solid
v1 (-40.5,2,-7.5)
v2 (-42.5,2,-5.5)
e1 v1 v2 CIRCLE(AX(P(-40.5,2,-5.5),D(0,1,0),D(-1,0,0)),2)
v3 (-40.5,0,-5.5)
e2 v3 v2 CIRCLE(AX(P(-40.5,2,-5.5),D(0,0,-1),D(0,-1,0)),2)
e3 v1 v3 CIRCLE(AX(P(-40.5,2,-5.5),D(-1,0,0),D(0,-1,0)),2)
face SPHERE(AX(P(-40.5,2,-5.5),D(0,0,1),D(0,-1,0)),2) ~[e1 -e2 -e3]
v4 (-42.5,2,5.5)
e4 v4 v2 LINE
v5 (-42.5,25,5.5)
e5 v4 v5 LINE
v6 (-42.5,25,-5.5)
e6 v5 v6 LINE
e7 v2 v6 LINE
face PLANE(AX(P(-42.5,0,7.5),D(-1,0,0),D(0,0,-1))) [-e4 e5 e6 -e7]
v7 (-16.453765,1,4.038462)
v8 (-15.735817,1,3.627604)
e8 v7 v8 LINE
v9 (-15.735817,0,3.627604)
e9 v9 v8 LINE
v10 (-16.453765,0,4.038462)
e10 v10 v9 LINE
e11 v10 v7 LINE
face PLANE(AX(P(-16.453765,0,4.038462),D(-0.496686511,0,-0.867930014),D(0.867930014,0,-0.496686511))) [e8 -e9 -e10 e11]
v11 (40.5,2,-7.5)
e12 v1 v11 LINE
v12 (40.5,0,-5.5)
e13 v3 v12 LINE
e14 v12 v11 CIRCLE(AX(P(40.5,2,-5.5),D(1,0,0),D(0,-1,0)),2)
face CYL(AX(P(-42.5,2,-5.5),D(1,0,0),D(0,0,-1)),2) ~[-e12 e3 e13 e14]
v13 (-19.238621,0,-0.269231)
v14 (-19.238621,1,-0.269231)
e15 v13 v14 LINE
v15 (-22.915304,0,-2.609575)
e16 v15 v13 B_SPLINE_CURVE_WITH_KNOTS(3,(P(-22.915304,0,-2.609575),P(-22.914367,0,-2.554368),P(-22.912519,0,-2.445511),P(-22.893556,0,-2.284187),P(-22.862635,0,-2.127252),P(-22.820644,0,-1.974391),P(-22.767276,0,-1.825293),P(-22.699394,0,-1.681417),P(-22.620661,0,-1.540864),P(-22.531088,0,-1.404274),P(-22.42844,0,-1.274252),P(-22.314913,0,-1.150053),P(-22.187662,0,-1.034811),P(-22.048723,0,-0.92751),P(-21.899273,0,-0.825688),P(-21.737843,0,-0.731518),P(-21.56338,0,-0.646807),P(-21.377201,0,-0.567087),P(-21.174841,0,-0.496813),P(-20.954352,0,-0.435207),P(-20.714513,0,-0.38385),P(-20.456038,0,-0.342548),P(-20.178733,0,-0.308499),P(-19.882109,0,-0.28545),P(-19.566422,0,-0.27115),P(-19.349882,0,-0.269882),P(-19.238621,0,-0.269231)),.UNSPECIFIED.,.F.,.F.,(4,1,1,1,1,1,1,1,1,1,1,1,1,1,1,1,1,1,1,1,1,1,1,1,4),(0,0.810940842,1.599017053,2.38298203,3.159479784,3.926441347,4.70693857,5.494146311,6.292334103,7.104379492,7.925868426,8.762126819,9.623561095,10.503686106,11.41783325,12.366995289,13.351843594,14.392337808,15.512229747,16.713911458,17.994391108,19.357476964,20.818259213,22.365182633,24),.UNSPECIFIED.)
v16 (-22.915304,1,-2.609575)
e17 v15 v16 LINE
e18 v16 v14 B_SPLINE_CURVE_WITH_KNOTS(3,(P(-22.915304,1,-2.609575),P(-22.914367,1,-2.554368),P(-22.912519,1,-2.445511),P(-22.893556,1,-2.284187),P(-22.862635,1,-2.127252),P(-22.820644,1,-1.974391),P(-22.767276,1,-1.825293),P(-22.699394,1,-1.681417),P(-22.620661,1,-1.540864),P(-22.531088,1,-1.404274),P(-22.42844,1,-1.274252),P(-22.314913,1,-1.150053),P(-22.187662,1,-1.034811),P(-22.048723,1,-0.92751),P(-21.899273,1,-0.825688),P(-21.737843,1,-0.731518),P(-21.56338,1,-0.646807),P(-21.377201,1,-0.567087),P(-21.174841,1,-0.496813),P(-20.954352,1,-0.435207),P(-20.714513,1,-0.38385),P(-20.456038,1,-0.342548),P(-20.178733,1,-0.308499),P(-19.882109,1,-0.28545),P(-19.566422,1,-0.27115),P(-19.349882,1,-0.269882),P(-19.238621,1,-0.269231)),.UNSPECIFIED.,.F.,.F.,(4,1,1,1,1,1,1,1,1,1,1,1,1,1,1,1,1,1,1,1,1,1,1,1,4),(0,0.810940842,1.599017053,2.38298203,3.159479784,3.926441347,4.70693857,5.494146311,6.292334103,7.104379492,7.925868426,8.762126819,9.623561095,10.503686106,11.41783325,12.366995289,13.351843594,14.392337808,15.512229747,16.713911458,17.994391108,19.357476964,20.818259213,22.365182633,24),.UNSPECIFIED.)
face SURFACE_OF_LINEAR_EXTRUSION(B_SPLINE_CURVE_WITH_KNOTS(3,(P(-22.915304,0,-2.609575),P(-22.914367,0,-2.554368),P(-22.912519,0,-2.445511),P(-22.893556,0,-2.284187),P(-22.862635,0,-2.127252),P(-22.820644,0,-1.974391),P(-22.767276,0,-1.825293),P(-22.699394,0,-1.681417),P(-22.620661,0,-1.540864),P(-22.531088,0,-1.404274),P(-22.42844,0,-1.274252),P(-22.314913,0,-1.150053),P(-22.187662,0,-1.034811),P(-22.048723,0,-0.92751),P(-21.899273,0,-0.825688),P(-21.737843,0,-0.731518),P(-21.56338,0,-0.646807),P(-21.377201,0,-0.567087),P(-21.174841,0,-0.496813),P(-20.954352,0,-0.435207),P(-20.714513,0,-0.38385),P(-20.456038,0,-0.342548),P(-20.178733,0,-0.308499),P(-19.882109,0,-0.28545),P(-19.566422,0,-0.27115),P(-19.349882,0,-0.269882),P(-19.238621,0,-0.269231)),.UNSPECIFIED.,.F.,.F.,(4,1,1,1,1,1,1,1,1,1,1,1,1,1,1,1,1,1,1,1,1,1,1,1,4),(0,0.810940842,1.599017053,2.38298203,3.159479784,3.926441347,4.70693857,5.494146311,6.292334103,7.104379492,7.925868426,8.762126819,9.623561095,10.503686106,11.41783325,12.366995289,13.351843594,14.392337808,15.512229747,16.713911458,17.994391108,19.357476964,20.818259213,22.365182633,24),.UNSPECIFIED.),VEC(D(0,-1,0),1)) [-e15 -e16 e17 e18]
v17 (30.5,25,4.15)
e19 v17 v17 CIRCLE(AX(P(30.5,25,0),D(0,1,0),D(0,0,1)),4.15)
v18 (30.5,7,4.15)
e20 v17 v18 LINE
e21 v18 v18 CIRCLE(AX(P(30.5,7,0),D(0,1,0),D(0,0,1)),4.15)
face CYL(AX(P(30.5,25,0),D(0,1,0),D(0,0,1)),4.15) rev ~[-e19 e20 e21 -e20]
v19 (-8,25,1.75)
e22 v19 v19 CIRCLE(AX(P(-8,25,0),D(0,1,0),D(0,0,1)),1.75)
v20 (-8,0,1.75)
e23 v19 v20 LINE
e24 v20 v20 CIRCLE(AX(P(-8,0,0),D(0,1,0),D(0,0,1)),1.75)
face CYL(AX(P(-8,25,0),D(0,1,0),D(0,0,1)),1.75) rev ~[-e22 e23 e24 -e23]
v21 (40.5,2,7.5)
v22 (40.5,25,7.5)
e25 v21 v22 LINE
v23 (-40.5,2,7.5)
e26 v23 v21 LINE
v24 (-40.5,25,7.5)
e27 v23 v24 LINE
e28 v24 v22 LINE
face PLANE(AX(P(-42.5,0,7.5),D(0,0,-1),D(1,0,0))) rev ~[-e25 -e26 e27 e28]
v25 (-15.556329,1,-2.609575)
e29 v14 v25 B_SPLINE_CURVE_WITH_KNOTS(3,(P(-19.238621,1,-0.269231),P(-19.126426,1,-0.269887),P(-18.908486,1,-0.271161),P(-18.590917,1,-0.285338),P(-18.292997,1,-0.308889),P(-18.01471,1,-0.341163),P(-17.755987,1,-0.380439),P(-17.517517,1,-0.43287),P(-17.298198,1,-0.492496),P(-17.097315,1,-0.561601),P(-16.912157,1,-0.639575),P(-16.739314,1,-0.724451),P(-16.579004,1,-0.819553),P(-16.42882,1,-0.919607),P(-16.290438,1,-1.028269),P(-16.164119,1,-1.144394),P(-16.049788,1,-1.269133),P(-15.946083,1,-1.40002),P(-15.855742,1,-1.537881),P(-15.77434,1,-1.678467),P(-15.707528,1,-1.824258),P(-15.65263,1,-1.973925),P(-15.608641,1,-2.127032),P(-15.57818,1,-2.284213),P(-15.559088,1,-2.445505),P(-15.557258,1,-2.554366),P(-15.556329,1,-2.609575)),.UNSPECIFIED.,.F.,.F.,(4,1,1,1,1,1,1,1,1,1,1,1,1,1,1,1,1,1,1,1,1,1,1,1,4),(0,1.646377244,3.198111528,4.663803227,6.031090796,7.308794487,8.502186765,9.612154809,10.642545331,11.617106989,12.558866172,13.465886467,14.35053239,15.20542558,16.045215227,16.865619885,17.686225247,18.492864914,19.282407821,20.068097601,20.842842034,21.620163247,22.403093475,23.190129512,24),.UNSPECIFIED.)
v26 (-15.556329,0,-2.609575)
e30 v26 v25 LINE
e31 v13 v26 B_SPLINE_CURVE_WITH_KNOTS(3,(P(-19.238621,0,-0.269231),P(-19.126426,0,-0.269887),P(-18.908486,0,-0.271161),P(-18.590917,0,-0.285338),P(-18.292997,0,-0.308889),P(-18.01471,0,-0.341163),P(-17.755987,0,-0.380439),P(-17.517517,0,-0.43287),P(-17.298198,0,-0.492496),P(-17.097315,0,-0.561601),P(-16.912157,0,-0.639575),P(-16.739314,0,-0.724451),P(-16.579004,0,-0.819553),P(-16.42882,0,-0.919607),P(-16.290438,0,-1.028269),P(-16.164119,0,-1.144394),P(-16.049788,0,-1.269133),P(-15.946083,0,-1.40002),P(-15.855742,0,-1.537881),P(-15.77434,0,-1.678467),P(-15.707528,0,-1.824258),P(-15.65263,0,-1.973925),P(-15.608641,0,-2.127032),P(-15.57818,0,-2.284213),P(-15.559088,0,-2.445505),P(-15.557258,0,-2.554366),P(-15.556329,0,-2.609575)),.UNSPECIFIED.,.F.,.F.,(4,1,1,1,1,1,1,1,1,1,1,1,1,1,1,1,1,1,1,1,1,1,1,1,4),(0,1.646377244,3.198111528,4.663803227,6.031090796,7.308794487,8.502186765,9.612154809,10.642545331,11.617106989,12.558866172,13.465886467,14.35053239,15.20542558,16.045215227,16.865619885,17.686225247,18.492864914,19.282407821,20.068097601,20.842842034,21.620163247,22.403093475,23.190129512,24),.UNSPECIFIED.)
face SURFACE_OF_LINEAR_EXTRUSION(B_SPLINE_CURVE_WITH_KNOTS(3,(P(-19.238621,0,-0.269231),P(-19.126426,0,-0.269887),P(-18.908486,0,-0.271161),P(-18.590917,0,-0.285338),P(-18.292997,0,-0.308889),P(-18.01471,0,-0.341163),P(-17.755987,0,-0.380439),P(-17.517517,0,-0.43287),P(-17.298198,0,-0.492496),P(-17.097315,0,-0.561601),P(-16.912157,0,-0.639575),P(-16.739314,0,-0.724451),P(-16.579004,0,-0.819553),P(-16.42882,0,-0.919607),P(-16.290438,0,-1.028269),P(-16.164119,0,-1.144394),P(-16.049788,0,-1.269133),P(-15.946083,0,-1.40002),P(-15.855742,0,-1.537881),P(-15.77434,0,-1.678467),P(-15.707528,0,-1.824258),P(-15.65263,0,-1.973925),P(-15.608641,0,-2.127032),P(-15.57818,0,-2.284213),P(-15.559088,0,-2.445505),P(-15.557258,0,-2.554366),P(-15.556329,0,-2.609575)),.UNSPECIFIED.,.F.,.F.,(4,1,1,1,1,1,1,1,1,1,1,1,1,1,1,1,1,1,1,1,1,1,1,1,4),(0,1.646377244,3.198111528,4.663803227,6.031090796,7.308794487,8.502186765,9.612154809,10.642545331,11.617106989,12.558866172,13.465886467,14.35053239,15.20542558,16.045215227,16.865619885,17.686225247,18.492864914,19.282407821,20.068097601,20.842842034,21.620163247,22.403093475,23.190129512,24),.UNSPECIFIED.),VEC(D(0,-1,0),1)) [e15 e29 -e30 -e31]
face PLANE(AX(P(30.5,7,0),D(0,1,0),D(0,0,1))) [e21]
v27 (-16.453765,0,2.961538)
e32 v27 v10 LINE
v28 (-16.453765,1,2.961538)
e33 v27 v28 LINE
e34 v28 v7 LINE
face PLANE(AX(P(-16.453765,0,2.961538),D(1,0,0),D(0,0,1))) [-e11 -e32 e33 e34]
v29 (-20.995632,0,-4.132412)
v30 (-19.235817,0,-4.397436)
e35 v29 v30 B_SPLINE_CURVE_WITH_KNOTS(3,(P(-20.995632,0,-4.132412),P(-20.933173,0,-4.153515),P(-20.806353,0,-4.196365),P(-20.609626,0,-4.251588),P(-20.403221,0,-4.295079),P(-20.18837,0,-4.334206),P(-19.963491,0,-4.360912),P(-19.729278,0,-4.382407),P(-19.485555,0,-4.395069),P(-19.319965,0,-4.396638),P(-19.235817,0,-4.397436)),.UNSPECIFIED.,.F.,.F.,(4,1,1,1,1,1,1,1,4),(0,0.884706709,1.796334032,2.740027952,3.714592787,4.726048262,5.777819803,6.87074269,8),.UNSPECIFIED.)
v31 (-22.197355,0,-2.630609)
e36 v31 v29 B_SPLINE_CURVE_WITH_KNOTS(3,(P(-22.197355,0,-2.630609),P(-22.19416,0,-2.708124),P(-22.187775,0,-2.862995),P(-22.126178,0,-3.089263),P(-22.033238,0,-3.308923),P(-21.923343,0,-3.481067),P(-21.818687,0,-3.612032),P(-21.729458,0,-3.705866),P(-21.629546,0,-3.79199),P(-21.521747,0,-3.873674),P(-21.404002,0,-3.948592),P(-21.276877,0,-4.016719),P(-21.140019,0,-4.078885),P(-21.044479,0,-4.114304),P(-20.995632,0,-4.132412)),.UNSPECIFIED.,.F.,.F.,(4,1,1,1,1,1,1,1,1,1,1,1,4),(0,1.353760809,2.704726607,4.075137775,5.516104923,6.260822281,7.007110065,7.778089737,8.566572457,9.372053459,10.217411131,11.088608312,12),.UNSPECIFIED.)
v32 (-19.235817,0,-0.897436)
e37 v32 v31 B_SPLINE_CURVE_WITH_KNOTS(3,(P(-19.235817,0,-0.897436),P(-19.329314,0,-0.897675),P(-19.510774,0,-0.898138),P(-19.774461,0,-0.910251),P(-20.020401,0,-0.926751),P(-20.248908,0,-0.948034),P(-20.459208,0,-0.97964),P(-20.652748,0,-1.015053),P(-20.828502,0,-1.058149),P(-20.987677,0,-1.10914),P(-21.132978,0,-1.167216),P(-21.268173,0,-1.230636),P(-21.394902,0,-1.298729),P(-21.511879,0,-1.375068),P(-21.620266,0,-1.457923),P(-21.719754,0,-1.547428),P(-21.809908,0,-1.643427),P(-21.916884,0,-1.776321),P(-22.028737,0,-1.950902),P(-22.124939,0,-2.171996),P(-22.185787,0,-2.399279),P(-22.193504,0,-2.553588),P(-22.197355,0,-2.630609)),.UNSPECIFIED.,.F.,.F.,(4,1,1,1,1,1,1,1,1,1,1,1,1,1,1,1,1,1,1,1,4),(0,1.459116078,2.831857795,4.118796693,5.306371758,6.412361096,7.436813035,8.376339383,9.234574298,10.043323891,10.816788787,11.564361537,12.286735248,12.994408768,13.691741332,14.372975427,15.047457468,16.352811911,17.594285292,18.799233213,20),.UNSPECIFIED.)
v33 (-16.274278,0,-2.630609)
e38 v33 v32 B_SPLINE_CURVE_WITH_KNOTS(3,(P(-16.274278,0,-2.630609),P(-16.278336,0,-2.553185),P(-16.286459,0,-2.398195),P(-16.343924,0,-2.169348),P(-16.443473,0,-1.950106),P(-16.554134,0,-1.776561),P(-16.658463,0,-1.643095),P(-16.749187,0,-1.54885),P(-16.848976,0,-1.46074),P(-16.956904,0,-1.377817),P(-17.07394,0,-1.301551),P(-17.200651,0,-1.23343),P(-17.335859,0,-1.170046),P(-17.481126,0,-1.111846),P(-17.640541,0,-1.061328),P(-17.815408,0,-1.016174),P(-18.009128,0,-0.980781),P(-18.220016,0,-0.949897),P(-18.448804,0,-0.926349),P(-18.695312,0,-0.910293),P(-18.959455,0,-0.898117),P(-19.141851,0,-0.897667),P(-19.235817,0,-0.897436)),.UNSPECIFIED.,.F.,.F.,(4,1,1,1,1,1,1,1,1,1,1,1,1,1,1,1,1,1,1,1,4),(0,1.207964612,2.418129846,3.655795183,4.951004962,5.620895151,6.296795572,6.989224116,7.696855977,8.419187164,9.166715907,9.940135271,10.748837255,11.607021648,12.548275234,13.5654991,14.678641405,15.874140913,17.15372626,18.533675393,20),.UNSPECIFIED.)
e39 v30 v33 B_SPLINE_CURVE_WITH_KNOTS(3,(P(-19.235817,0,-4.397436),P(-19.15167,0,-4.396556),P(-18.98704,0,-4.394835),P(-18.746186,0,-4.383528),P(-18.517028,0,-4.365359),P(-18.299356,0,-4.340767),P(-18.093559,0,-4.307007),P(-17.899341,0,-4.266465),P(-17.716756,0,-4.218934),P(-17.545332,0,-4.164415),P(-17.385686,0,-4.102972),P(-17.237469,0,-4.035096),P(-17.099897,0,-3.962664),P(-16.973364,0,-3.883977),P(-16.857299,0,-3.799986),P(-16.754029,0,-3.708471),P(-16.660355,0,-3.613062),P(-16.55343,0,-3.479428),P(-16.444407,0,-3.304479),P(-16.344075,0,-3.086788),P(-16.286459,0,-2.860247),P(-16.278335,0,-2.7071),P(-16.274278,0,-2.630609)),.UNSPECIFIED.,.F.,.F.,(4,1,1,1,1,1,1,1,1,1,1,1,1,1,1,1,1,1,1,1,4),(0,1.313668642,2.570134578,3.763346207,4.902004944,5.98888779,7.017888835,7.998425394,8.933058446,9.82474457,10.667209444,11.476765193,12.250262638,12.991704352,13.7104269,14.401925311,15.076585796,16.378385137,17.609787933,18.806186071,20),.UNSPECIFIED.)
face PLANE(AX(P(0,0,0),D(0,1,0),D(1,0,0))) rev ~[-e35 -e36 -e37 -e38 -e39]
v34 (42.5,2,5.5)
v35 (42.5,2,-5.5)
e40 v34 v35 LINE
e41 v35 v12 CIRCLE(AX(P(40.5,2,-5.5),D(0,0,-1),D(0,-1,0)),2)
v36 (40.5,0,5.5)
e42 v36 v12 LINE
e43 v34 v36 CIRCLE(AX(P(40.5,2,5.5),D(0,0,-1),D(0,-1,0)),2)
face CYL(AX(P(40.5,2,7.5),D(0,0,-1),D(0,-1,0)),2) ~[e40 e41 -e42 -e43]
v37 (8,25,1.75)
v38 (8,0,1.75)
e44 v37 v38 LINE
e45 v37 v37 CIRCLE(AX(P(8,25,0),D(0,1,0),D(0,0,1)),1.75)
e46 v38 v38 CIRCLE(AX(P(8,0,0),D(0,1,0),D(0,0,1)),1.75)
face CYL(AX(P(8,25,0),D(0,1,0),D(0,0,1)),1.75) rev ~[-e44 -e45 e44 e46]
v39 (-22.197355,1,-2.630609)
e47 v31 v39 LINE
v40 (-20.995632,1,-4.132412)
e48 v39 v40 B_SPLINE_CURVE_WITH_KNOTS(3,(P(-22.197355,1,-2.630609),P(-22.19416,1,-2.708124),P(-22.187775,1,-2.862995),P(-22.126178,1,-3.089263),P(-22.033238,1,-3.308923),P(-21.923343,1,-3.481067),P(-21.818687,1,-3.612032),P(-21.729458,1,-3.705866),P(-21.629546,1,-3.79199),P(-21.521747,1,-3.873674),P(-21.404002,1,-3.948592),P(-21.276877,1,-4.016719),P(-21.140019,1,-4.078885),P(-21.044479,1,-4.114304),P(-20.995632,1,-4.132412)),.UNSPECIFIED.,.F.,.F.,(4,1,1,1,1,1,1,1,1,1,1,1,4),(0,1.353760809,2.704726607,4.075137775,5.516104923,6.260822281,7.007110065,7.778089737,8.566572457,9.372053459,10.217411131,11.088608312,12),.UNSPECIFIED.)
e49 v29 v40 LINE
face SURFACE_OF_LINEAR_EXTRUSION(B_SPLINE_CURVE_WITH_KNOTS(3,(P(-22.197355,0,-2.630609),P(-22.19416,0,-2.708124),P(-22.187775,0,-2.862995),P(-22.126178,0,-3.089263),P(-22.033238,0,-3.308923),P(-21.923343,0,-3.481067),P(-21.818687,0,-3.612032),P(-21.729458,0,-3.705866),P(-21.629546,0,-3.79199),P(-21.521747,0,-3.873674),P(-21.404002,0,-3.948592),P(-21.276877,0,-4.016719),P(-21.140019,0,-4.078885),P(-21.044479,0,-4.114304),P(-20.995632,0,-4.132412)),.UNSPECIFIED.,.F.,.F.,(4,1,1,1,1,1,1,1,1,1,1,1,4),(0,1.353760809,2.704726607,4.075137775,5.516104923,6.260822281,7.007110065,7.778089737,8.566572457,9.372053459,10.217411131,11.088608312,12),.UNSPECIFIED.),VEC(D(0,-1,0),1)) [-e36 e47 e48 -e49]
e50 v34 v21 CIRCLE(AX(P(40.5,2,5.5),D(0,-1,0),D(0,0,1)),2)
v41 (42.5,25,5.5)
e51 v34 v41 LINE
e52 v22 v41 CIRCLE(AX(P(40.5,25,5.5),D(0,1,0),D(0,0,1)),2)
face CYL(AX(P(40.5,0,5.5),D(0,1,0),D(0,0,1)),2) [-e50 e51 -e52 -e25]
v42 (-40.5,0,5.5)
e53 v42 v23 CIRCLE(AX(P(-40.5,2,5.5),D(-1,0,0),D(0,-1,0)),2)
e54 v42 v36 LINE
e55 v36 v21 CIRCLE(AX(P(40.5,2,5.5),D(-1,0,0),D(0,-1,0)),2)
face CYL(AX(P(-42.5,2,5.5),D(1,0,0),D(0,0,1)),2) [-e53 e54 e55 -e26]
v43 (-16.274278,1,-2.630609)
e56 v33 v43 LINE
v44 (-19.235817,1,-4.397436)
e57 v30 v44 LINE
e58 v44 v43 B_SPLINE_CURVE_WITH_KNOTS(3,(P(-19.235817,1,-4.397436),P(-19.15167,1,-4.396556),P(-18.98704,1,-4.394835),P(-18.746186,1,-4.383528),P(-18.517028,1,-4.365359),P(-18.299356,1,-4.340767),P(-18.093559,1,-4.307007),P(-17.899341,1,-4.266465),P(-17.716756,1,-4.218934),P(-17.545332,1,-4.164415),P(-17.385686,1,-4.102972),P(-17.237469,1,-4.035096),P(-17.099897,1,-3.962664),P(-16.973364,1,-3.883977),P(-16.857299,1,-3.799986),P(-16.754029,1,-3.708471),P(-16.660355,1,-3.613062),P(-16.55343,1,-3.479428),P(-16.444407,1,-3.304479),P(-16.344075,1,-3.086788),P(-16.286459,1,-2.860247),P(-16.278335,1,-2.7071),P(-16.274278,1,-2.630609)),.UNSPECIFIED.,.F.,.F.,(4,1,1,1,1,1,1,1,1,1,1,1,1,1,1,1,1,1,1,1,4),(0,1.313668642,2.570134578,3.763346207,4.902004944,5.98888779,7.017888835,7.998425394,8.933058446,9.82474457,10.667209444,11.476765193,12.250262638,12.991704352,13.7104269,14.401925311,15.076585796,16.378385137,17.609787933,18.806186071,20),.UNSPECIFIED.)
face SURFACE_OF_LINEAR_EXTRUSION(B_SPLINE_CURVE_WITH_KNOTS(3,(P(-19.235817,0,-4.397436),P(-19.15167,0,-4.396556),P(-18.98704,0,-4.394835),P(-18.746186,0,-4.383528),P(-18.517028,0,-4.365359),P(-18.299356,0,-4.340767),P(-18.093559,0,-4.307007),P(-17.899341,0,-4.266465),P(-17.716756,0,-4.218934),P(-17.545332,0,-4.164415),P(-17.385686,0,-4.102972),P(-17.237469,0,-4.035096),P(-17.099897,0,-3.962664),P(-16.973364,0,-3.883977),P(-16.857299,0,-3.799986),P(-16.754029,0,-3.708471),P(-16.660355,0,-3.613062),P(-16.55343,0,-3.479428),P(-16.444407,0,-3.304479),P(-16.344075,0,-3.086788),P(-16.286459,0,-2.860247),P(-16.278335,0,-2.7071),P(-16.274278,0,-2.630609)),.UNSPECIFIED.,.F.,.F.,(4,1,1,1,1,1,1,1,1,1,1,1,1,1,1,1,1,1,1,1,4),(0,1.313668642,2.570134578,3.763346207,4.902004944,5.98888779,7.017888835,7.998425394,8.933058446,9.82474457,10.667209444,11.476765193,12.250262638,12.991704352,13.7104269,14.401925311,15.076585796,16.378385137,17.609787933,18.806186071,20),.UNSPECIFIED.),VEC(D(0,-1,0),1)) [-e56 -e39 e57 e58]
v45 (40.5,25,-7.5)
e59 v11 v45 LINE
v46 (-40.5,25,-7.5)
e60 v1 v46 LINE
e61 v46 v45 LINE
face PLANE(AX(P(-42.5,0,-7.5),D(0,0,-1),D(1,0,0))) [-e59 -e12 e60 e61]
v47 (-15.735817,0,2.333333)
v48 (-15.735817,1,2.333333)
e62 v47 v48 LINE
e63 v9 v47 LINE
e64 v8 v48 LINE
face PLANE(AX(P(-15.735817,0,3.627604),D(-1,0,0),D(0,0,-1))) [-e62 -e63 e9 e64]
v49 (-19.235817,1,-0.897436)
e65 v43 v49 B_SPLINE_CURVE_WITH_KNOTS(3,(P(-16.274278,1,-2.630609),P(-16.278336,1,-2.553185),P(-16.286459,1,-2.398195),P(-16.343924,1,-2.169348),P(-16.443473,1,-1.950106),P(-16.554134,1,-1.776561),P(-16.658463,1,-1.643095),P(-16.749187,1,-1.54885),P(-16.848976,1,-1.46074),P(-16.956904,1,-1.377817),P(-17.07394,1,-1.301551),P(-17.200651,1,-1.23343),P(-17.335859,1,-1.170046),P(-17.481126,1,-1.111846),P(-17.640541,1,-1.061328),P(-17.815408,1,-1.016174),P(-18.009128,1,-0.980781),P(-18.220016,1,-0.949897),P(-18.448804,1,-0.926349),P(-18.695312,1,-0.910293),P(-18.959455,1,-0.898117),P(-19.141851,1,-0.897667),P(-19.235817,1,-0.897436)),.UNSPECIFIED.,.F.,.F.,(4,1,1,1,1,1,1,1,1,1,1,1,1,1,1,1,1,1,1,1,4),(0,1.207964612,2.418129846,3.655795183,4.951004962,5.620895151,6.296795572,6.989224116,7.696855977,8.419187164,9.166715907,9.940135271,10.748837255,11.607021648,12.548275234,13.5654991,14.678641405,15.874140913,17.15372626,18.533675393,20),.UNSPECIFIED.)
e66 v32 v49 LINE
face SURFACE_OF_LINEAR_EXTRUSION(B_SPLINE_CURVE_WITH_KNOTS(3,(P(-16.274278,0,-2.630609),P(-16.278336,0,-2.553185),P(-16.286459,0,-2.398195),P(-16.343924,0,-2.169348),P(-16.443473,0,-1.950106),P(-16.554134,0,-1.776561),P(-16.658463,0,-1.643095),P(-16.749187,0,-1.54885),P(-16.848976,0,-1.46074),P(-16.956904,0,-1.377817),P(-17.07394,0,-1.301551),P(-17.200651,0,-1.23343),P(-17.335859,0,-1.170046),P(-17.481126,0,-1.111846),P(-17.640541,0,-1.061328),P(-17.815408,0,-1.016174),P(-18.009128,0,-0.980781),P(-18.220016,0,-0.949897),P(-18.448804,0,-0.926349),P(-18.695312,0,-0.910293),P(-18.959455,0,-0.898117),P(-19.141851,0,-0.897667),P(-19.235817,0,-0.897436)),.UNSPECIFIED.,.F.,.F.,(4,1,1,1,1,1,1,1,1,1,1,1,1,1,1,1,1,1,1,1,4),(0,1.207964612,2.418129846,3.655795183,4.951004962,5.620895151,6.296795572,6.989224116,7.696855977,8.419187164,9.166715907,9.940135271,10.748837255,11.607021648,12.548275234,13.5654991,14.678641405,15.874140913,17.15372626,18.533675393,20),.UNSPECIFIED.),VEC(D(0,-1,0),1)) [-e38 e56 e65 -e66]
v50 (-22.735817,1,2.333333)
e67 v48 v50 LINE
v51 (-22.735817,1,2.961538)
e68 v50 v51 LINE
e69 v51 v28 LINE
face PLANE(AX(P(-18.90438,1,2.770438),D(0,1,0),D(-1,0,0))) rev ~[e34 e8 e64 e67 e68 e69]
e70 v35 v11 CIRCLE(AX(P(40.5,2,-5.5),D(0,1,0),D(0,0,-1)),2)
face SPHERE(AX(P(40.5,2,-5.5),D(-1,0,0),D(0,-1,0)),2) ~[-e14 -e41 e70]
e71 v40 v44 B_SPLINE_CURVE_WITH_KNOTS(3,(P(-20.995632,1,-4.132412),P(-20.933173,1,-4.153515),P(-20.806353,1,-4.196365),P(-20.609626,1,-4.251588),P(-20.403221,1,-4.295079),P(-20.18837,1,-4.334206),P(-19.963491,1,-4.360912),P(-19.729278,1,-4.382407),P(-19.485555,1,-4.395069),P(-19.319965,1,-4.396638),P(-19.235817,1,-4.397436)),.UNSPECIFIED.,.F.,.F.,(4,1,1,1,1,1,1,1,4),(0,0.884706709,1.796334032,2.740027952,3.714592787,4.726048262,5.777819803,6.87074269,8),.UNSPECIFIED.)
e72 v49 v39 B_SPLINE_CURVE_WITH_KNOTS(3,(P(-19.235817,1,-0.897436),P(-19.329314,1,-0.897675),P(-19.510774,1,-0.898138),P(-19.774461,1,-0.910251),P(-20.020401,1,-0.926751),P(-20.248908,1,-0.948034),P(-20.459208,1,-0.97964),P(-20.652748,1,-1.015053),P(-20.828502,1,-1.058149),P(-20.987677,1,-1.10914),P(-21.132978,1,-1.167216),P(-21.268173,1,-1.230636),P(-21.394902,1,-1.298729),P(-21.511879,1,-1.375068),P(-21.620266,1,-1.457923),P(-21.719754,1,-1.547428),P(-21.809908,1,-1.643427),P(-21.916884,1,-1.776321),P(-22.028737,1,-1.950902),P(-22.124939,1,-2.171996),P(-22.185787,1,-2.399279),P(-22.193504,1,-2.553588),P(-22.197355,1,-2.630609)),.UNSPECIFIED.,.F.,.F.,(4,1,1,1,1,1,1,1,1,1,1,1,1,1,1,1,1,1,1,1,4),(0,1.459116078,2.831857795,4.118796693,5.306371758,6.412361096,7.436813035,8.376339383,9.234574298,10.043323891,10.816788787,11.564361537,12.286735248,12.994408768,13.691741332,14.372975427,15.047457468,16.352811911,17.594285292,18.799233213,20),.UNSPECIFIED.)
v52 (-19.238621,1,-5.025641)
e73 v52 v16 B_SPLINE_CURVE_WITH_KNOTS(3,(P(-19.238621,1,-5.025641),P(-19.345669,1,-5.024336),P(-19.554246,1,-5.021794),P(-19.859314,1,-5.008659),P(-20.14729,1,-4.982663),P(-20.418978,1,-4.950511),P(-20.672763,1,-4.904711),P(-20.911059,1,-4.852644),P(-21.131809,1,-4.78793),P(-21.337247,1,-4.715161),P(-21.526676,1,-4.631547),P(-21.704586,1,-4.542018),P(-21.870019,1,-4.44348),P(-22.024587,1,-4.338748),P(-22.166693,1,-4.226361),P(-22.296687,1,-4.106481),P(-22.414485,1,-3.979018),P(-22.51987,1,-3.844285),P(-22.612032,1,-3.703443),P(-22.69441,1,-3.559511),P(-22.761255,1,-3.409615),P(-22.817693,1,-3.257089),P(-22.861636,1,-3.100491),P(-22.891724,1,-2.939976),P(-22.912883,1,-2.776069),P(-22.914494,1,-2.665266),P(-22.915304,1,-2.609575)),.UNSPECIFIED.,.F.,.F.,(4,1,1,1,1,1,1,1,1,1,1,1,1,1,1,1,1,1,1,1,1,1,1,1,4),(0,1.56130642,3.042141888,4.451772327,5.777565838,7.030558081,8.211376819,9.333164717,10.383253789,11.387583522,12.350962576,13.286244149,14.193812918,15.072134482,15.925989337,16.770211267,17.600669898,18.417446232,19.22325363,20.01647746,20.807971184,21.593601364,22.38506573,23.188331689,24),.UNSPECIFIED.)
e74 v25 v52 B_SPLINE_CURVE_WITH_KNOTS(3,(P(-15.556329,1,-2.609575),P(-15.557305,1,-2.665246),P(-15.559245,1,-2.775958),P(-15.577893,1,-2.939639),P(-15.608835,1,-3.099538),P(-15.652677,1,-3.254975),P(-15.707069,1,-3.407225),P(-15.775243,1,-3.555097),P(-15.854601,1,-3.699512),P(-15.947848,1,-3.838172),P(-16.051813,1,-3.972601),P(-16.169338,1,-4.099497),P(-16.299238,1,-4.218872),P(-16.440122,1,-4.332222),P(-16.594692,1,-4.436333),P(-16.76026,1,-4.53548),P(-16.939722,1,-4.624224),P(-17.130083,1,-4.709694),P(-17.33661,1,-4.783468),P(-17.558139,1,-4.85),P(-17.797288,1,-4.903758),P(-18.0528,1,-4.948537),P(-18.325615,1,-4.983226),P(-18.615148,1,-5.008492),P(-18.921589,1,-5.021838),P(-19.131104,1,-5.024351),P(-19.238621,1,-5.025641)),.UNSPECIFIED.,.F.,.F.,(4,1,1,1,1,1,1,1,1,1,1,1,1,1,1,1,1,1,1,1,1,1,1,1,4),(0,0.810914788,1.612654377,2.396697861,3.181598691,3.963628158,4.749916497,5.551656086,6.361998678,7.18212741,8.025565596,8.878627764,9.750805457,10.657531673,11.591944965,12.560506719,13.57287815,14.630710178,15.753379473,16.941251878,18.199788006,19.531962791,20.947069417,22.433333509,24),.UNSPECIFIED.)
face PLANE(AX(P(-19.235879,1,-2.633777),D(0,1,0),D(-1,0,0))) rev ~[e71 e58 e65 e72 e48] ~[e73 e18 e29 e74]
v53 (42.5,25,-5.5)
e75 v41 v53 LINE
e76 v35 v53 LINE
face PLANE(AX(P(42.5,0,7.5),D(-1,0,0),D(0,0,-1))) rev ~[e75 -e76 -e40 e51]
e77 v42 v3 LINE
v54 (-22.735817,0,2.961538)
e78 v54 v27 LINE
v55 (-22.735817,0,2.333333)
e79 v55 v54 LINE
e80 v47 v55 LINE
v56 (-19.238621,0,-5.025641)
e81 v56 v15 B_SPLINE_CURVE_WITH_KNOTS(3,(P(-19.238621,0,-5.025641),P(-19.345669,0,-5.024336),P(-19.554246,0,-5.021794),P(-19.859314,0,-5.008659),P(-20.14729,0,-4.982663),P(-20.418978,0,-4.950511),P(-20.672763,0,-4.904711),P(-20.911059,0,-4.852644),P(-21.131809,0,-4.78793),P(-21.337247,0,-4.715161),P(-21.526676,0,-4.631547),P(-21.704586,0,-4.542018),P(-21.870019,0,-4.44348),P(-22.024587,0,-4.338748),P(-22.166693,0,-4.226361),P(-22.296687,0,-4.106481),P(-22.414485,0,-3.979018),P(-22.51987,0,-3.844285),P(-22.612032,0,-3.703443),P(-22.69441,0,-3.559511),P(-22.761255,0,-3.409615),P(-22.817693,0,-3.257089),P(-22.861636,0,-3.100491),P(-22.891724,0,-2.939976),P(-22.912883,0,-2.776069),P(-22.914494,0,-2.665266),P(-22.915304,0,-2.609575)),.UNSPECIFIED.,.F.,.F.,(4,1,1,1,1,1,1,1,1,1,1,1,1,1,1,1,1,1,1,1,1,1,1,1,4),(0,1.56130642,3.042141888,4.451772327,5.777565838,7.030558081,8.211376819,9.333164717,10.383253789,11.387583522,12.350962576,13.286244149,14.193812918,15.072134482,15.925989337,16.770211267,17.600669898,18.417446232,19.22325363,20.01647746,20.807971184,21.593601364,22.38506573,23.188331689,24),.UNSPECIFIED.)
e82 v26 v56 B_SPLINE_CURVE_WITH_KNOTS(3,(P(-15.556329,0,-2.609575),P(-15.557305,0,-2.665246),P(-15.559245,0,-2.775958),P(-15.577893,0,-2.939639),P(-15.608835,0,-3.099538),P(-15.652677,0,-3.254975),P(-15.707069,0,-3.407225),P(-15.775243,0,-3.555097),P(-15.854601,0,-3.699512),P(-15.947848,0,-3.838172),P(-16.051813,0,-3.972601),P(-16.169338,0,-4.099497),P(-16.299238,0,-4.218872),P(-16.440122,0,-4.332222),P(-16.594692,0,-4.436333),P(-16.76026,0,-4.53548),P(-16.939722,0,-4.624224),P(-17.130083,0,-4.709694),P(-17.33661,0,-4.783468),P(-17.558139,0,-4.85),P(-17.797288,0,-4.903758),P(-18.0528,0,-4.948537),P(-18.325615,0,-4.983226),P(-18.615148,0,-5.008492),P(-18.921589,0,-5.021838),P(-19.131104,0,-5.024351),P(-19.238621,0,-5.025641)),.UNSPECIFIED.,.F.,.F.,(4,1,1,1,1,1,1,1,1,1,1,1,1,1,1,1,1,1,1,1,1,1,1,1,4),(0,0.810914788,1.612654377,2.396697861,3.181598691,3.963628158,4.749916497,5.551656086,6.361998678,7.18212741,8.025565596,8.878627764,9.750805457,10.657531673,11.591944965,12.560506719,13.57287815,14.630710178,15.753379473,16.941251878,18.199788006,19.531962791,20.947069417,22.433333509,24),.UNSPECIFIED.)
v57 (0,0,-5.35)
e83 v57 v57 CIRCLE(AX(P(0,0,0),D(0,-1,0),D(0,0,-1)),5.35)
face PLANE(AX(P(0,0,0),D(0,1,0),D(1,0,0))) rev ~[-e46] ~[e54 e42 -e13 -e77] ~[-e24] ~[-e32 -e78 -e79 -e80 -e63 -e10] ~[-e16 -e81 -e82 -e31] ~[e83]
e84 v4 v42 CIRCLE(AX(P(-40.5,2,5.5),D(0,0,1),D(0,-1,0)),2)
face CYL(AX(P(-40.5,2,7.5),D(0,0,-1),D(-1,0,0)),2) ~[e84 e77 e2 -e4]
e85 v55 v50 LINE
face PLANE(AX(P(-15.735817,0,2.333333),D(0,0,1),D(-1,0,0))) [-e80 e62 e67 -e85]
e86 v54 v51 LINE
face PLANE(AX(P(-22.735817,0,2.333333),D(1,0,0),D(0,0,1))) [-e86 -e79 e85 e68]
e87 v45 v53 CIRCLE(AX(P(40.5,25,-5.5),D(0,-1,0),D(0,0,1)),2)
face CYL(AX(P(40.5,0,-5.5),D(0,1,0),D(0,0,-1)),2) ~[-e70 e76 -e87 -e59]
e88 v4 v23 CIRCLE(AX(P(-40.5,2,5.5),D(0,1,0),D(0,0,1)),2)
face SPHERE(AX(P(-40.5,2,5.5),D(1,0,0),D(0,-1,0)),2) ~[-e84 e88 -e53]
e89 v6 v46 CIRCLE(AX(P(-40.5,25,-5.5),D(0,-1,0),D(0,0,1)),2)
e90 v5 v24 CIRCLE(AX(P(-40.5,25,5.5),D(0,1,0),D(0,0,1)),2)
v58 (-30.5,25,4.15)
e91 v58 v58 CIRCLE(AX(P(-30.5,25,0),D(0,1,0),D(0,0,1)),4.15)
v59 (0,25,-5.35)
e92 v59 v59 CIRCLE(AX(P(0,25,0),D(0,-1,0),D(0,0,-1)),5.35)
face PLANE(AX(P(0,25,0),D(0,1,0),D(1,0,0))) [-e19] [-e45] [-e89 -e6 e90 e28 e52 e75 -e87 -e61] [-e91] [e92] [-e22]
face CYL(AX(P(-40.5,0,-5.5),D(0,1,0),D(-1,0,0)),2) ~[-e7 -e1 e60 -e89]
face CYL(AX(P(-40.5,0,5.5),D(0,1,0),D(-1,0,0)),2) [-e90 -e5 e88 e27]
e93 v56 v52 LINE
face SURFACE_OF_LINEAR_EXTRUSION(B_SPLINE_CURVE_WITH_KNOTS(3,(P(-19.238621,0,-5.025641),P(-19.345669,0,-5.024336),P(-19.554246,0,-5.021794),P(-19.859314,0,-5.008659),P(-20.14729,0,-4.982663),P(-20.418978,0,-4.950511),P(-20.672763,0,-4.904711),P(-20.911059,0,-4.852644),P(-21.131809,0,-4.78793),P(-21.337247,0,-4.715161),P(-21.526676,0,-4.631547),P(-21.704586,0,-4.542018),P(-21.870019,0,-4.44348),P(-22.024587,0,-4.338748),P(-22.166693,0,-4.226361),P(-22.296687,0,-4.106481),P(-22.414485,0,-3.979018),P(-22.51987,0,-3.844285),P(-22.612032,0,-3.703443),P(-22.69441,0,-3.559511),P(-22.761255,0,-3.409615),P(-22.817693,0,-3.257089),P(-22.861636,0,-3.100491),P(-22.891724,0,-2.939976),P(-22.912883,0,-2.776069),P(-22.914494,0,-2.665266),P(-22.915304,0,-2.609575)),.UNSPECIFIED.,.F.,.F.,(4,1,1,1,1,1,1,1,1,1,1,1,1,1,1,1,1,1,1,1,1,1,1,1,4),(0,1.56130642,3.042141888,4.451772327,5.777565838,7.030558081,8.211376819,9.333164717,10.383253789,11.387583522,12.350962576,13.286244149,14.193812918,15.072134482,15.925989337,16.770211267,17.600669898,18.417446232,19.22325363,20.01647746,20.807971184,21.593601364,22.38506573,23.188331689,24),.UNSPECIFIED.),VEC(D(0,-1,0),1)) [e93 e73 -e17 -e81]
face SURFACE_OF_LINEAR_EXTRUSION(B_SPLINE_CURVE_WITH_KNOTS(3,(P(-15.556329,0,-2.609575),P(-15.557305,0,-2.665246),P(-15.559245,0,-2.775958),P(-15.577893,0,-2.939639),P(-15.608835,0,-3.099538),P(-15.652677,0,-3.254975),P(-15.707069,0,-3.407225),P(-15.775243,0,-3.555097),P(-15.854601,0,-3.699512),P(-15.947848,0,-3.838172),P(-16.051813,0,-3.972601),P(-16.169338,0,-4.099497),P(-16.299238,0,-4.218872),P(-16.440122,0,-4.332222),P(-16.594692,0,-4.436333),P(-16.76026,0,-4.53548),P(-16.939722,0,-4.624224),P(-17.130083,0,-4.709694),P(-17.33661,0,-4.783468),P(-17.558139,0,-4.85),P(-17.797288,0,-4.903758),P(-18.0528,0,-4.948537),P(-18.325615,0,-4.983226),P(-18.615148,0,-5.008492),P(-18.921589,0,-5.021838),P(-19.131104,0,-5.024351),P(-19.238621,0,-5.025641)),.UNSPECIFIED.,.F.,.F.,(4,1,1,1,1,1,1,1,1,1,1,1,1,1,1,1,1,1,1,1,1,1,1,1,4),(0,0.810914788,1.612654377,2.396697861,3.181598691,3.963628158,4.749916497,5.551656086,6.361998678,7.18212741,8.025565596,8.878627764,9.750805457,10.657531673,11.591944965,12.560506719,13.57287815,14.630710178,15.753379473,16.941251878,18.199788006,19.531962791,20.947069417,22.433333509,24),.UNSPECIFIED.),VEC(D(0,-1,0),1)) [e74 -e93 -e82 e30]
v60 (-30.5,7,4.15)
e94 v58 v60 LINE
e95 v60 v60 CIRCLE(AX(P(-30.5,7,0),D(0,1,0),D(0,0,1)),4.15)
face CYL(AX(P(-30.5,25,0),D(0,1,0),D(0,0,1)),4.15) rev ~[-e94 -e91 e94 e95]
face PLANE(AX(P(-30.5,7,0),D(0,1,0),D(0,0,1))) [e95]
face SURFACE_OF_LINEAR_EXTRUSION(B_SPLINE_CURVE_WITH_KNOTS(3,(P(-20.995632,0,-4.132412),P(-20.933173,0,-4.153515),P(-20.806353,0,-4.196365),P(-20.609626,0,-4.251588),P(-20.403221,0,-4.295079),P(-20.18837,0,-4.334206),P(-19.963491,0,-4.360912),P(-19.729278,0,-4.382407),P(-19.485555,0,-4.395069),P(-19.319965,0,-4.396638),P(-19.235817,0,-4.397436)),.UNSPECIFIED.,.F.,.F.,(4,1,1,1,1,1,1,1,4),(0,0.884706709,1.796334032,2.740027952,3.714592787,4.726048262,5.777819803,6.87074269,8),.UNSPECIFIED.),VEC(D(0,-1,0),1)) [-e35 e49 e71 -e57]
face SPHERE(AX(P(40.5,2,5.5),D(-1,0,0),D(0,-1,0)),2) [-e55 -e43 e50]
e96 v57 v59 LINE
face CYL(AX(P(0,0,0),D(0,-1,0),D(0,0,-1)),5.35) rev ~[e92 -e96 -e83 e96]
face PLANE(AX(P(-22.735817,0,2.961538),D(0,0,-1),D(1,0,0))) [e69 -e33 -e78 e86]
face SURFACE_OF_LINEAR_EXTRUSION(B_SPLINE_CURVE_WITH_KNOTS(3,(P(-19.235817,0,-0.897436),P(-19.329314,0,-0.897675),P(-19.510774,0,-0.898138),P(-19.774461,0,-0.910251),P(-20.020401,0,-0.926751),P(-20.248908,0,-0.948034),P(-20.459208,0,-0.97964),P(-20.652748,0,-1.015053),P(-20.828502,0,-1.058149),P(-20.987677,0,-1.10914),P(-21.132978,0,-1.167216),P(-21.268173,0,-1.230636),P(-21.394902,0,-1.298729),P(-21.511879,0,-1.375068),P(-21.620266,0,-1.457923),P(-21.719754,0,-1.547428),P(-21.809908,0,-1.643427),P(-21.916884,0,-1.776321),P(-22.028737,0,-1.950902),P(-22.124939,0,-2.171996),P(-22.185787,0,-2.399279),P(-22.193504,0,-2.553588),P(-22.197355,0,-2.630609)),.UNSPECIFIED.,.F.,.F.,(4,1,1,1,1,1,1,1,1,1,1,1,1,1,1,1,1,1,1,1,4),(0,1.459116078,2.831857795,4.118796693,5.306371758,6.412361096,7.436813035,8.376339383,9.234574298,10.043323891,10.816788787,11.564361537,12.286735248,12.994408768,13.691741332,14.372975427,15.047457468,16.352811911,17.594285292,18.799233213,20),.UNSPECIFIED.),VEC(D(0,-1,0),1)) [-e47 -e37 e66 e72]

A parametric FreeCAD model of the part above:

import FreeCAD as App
import Part
import Sketcher

V = App.Vector
Q = App.Units.Quantity


def edges_at(feature, points):
    """Names of the edges that pass closest to the given points."""
    edges = feature.Shape.Edges
    near = lambda p: min(range(len(edges)), key=lambda i: edges[i].distToShape(Part.Vertex(*p))[0])
    return sorted({f"Edge{near(p) + 1}" for p in points})


def add_polygon(sketch, points):
    """Adds a closed chain of lines whose ends are joined by coincident constraints."""
    first, n = sketch.GeometryCount, len(points)
    for a, b in zip(points, points[1:] + points[:1]):
        sketch.addGeometry(Part.LineSegment(App.Vector(*a, 0), App.Vector(*b, 0)), False)
    for i in range(n):
        sketch.addConstraint(Sketcher.Constraint("Coincident", first + i, 2, first + (i + 1) % n, 1))

doc = App.newDocument("Part")
body = doc.addObject("PartDesign::Body", "Body")

# Sketch on XZ plane
sketch1 = body.newObject("Sketcher::SketchObject", "Sketch")
sketch1.AttachmentSupport = (doc.getObject("XZ_Plane"), [""])
sketch1.MapMode = "FlatFace"
add_polygon(sketch1, [(-42.5, -7.5), (-42.5, 7.5), (42.5, 7.5), (42.5, -7.5)])  # lines 0-3
sketch1.addConstraint(Sketcher.Constraint("Vertical", 0))
sketch1.addConstraint(Sketcher.Constraint("Horizontal", 1))
sketch1.addConstraint(Sketcher.Constraint("Vertical", 2))
sketch1.addConstraint(Sketcher.Constraint("Horizontal", 3))
sketch1.addConstraint(Sketcher.Constraint("Symmetric", 0, 2, 2, 2, -1, 1))
sketch1.addConstraint(Sketcher.Constraint("DistanceX", 1, 1, 1, 2, Q("85 mm")))
sketch1.addConstraint(Sketcher.Constraint("DistanceY", 0, 1, 0, 2, Q("15 mm")))
pad1 = body.newObject("PartDesign::Pad", "Pad")
pad1.Profile = sketch1
pad1.Length = 25
pad1.Reversed = True

# Sketch on XZ plane
sketch2 = body.newObject("Sketcher::SketchObject", "Sketch001")
sketch2.AttachmentSupport = (doc.getObject("XZ_Plane"), [""])
sketch2.MapMode = "FlatFace"
sketch2.addGeometry(Part.Circle(V(0, 0, 0), V(0, 0, 1), 5.35), False)
sketch2.addConstraint(Sketcher.Constraint("Coincident", 0, 3, -1, 1))
sketch2.addConstraint(Sketcher.Constraint("Diameter", 0, Q("10.7 mm")))
pocket1 = body.newObject("PartDesign::Pocket", "Pocket")
pocket1.Profile = sketch2
pocket1.Type = "ThroughAll"

# Sketch on XZ plane
sketch3 = body.newObject("Sketcher::SketchObject", "Sketch002")
sketch3.AttachmentSupport = (doc.getObject("XZ_Plane"), [""])
sketch3.MapMode = "FlatFace"
sketch3.AttachmentOffset = App.Placement(V(0, 0, -25), App.Rotation())
sketch3.addGeometry(Part.Circle(V(-30.5, 0, 0), V(0, 0, 1), 4.15), False)
sketch3.addGeometry(Part.Circle(V(30.5, 0, 0), V(0, 0, 1), 4.15), False)
sketch3.addConstraint(Sketcher.Constraint("Equal", 0, 1))
sketch3.addConstraint(Sketcher.Constraint("Symmetric", 0, 3, 1, 3, -1, 1))
sketch3.addConstraint(Sketcher.Constraint("PointOnObject", 0, 3, -1))
sketch3.addConstraint(Sketcher.Constraint("Diameter", 0, Q("8.3 mm")))
sketch3.addConstraint(Sketcher.Constraint("DistanceX", 0, 3, 1, 3, Q("61 mm")))
pocket2 = body.newObject("PartDesign::Pocket", "Pocket001")
pocket2.Profile = sketch3
pocket2.Length = 18
pocket2.Reversed = True
doc.recompute()

fillet = body.newObject("PartDesign::Fillet", "Fillet")
fillet.Base = (pocket2, edges_at(pocket2, [
    (0, 0, 7.5),
    (-42.5, 0, 0),
    (0, 0, -7.5),
    (42.5, 0, 0),
    (42.5, 12.5, 7.5),
    (-42.5, 12.5, 7.5),
    (-42.5, 12.5, -7.5),
    (42.5, 12.5, -7.5),
]))
fillet.Radius = 2

# Sketch on XZ plane
sketch4 = body.newObject("Sketcher::SketchObject", "Sketch003")
sketch4.AttachmentSupport = (doc.getObject("XZ_Plane"), [""])
sketch4.MapMode = "FlatFace"
sketch4.AttachmentOffset = App.Placement(V(0, 0, -25), App.Rotation())
sketch4.addGeometry(Part.Circle(V(8, 0, 0), V(0, 0, 1), 1.75), False)
sketch4.addGeometry(Part.Circle(V(-8, 0, 0), V(0, 0, 1), 1.75), False)
sketch4.addConstraint(Sketcher.Constraint("Equal", 0, 1))
sketch4.addConstraint(Sketcher.Constraint("Symmetric", 0, 3, 1, 3, -1, 1))
sketch4.addConstraint(Sketcher.Constraint("PointOnObject", 0, 3, -1))
sketch4.addConstraint(Sketcher.Constraint("Diameter", 0, Q("3.5 mm")))
sketch4.addConstraint(Sketcher.Constraint("DistanceX", -1, 1, 0, 3, Q("8 mm")))
pocket3 = body.newObject("PartDesign::Pocket", "Pocket002")
pocket3.Profile = sketch4
pocket3.Type = "ThroughAll"
pocket3.Reversed = True

# Sketch on XZ plane
sketch5 = body.newObject("Sketcher::SketchObject", "Sketch004")
sketch5.AttachmentSupport = (doc.getObject("XZ_Plane"), [""])
sketch5.MapMode = "FlatFace"
add_polygon(sketch5, [(-15.735817, 2.333333), (-15.735817, 3.627604), (-16.453765, 4.038462), (-16.453765, 2.961538), (-22.735817, 2.961538), (-22.735817, 2.333333)])  # lines 0-5
sketch5.addGeometry(Part.BSplineCurve([V(-19.238621, -0.269231, 0), V(-19.126426, -0.269887, 0), V(-18.908486, -0.271161, 0), V(-18.590917, -0.285338, 0), V(-18.292997, -0.308889, 0), V(-18.01471, -0.341163, 0), V(-17.755987, -0.380439, 0), V(-17.517517, -0.43287, 0), V(-17.298198, -0.492496, 0), V(-17.097315, -0.561601, 0), V(-16.912157, -0.639575, 0), V(-16.739314, -0.724451, 0), V(-16.579004, -0.819553, 0), V(-16.42882, -0.919607, 0), V(-16.290438, -1.028269, 0), V(-16.164119, -1.144394, 0), V(-16.049788, -1.269133, 0), V(-15.946083, -1.40002, 0), V(-15.855742, -1.537881, 0), V(-15.77434, -1.678467, 0), V(-15.707528, -1.824258, 0), V(-15.65263, -1.973925, 0), V(-15.608641, -2.127032, 0), V(-15.57818, -2.284213, 0), V(-15.559088, -2.445505, 0), V(-15.557258, -2.554366, 0), V(-15.556329, -2.609575, 0)], [4, 1, 1, 1, 1, 1, 1, 1, 1, 1, 1, 1, 1, 1, 1, 1, 1, 1, 1, 1, 1, 1, 1, 1, 4], [0, 1.646377244, 3.198111528, 4.663803227, 6.031090796, 7.308794487, 8.502186765, 9.612154809, 10.642545331, 11.617106989, 12.558866172, 13.465886467, 14.35053239, 15.20542558, 16.045215227, 16.865619885, 17.686225247, 18.492864914, 19.282407821, 20.068097601, 20.842842034, 21.620163247, 22.403093475, 23.190129512, 24], False, 3, [1, 1, 1, 1, 1, 1, 1, 1, 1, 1, 1, 1, 1, 1, 1, 1, 1, 1, 1, 1, 1, 1, 1, 1, 1, 1, 1], False), False)  # 6
sketch5.addGeometry(Part.BSplineCurve([V(-22.915304, -2.609575, 0), V(-22.914367, -2.554368, 0), V(-22.912519, -2.445511, 0), V(-22.893556, -2.284187, 0), V(-22.862635, -2.127252, 0), V(-22.820644, -1.974391, 0), V(-22.767276, -1.825293, 0), V(-22.699394, -1.681417, 0), V(-22.620661, -1.540864, 0), V(-22.531088, -1.404274, 0), V(-22.42844, -1.274252, 0), V(-22.314913, -1.150053, 0), V(-22.187662, -1.034811, 0), V(-22.048723, -0.92751, 0), V(-21.899273, -0.825688, 0), V(-21.737843, -0.731518, 0), V(-21.56338, -0.646807, 0), V(-21.377201, -0.567087, 0), V(-21.174841, -0.496813, 0), V(-20.954352, -0.435207, 0), V(-20.714513, -0.38385, 0), V(-20.456038, -0.342548, 0), V(-20.178733, -0.308499, 0), V(-19.882109, -0.28545, 0), V(-19.566422, -0.27115, 0), V(-19.349882, -0.269882, 0), V(-19.238621, -0.269231, 0)], [4, 1, 1, 1, 1, 1, 1, 1, 1, 1, 1, 1, 1, 1, 1, 1, 1, 1, 1, 1, 1, 1, 1, 1, 4], [0, 0.810940842, 1.599017053, 2.38298203, 3.159479784, 3.926441347, 4.70693857, 5.494146311, 6.292334103, 7.104379492, 7.925868426, 8.762126819, 9.623561095, 10.503686106, 11.41783325, 12.366995289, 13.351843594, 14.392337808, 15.512229747, 16.713911458, 17.994391108, 19.357476964, 20.818259213, 22.365182633, 24], False, 3, [1, 1, 1, 1, 1, 1, 1, 1, 1, 1, 1, 1, 1, 1, 1, 1, 1, 1, 1, 1, 1, 1, 1, 1, 1, 1, 1], False), False)  # 7
sketch5.addGeometry(Part.BSplineCurve([V(-19.238621, -5.025641, 0), V(-19.345669, -5.024336, 0), V(-19.554246, -5.021794, 0), V(-19.859314, -5.008659, 0), V(-20.14729, -4.982663, 0), V(-20.418978, -4.950511, 0), V(-20.672763, -4.904711, 0), V(-20.911059, -4.852644, 0), V(-21.131809, -4.78793, 0), V(-21.337247, -4.715161, 0), V(-21.526676, -4.631547, 0), V(-21.704586, -4.542018, 0), V(-21.870019, -4.44348, 0), V(-22.024587, -4.338748, 0), V(-22.166693, -4.226361, 0), V(-22.296687, -4.106481, 0), V(-22.414485, -3.979018, 0), V(-22.51987, -3.844285, 0), V(-22.612032, -3.703443, 0), V(-22.69441, -3.559511, 0), V(-22.761255, -3.409615, 0), V(-22.817693, -3.257089, 0), V(-22.861636, -3.100491, 0), V(-22.891724, -2.939976, 0), V(-22.912883, -2.776069, 0), V(-22.914494, -2.665266, 0), V(-22.915304, -2.609575, 0)], [4, 1, 1, 1, 1, 1, 1, 1, 1, 1, 1, 1, 1, 1, 1, 1, 1, 1, 1, 1, 1, 1, 1, 1, 4], [0, 1.56130642, 3.042141888, 4.451772327, 5.777565838, 7.030558081, 8.211376819, 9.333164717, 10.383253789, 11.387583522, 12.350962576, 13.286244149, 14.193812918, 15.072134482, 15.925989337, 16.770211267, 17.600669898, 18.417446232, 19.22325363, 20.01647746, 20.807971184, 21.593601364, 22.38506573, 23.188331689, 24], False, 3, [1, 1, 1, 1, 1, 1, 1, 1, 1, 1, 1, 1, 1, 1, 1, 1, 1, 1, 1, 1, 1, 1, 1, 1, 1, 1, 1], False), False)  # 8
sketch5.addGeometry(Part.BSplineCurve([V(-15.556329, -2.609575, 0), V(-15.557305, -2.665246, 0), V(-15.559245, -2.775958, 0), V(-15.577893, -2.939639, 0), V(-15.608835, -3.099538, 0), V(-15.652677, -3.254975, 0), V(-15.707069, -3.407225, 0), V(-15.775243, -3.555097, 0), V(-15.854601, -3.699512, 0), V(-15.947848, -3.838172, 0), V(-16.051813, -3.972601, 0), V(-16.169338, -4.099497, 0), V(-16.299238, -4.218872, 0), V(-16.440122, -4.332222, 0), V(-16.594692, -4.436333, 0), V(-16.76026, -4.53548, 0), V(-16.939722, -4.624224, 0), V(-17.130083, -4.709694, 0), V(-17.33661, -4.783468, 0), V(-17.558139, -4.85, 0), V(-17.797288, -4.903758, 0), V(-18.0528, -4.948537, 0), V(-18.325615, -4.983226, 0), V(-18.615148, -5.008492, 0), V(-18.921589, -5.021838, 0), V(-19.131104, -5.024351, 0), V(-19.238621, -5.025641, 0)], [4, 1, 1, 1, 1, 1, 1, 1, 1, 1, 1, 1, 1, 1, 1, 1, 1, 1, 1, 1, 1, 1, 1, 1, 4], [0, 0.810914788, 1.612654377, 2.396697861, 3.181598691, 3.963628158, 4.749916497, 5.551656086, 6.361998678, 7.18212741, 8.025565596, 8.878627764, 9.750805457, 10.657531673, 11.591944965, 12.560506719, 13.57287815, 14.630710178, 15.753379473, 16.941251878, 18.199788006, 19.531962791, 20.947069417, 22.433333509, 24], False, 3, [1, 1, 1, 1, 1, 1, 1, 1, 1, 1, 1, 1, 1, 1, 1, 1, 1, 1, 1, 1, 1, 1, 1, 1, 1, 1, 1], False), False)  # 9
sketch5.addGeometry(Part.BSplineCurve([V(-16.274278, -2.630609, 0), V(-16.278336, -2.553185, 0), V(-16.286459, -2.398195, 0), V(-16.343924, -2.169348, 0), V(-16.443473, -1.950106, 0), V(-16.554134, -1.776561, 0), V(-16.658463, -1.643095, 0), V(-16.749187, -1.54885, 0), V(-16.848976, -1.46074, 0), V(-16.956904, -1.377817, 0), V(-17.07394, -1.301551, 0), V(-17.200651, -1.23343, 0), V(-17.335859, -1.170046, 0), V(-17.481126, -1.111846, 0), V(-17.640541, -1.061328, 0), V(-17.815408, -1.016174, 0), V(-18.009128, -0.980781, 0), V(-18.220016, -0.949897, 0), V(-18.448804, -0.926349, 0), V(-18.695312, -0.910293, 0), V(-18.959455, -0.898117, 0), V(-19.141851, -0.897667, 0), V(-19.235817, -0.897436, 0)], [4, 1, 1, 1, 1, 1, 1, 1, 1, 1, 1, 1, 1, 1, 1, 1, 1, 1, 1, 1, 4], [0, 1.207964612, 2.418129846, 3.655795183, 4.951004962, 5.620895151, 6.296795572, 6.989224116, 7.696855977, 8.419187164, 9.166715907, 9.940135271, 10.748837255, 11.607021648, 12.548275234, 13.5654991, 14.678641405, 15.874140913, 17.15372626, 18.533675393, 20], False, 3, [1, 1, 1, 1, 1, 1, 1, 1, 1, 1, 1, 1, 1, 1, 1, 1, 1, 1, 1, 1, 1, 1, 1], False), False)  # 10
sketch5.addGeometry(Part.BSplineCurve([V(-19.235817, -4.397436, 0), V(-19.15167, -4.396556, 0), V(-18.98704, -4.394835, 0), V(-18.746186, -4.383528, 0), V(-18.517028, -4.365359, 0), V(-18.299356, -4.340767, 0), V(-18.093559, -4.307007, 0), V(-17.899341, -4.266465, 0), V(-17.716756, -4.218934, 0), V(-17.545332, -4.164415, 0), V(-17.385686, -4.102972, 0), V(-17.237469, -4.035096, 0), V(-17.099897, -3.962664, 0), V(-16.973364, -3.883977, 0), V(-16.857299, -3.799986, 0), V(-16.754029, -3.708471, 0), V(-16.660355, -3.613062, 0), V(-16.55343, -3.479428, 0), V(-16.444407, -3.304479, 0), V(-16.344075, -3.086788, 0), V(-16.286459, -2.860247, 0), V(-16.278335, -2.7071, 0), V(-16.274278, -2.630609, 0)], [4, 1, 1, 1, 1, 1, 1, 1, 1, 1, 1, 1, 1, 1, 1, 1, 1, 1, 1, 1, 4], [0, 1.313668642, 2.570134578, 3.763346207, 4.902004944, 5.98888779, 7.017888835, 7.998425394, 8.933058446, 9.82474457, 10.667209444, 11.476765193, 12.250262638, 12.991704352, 13.7104269, 14.401925311, 15.076585796, 16.378385137, 17.609787933, 18.806186071, 20], False, 3, [1, 1, 1, 1, 1, 1, 1, 1, 1, 1, 1, 1, 1, 1, 1, 1, 1, 1, 1, 1, 1, 1, 1], False), False)  # 11
sketch5.addGeometry(Part.BSplineCurve([V(-20.995632, -4.132412, 0), V(-20.933173, -4.153515, 0), V(-20.806353, -4.196365, 0), V(-20.609626, -4.251588, 0), V(-20.403221, -4.295079, 0), V(-20.18837, -4.334206, 0), V(-19.963491, -4.360912, 0), V(-19.729278, -4.382407, 0), V(-19.485555, -4.395069, 0), V(-19.319965, -4.396638, 0), V(-19.235817, -4.397436, 0)], [4, 1, 1, 1, 1, 1, 1, 1, 4], [0, 0.884706709, 1.796334032, 2.740027952, 3.714592787, 4.726048262, 5.777819803, 6.87074269, 8], False, 3, [1, 1, 1, 1, 1, 1, 1, 1, 1, 1, 1], False), False)  # 12
sketch5.addGeometry(Part.BSplineCurve([V(-22.197355, -2.630609, 0), V(-22.19416, -2.708124, 0), V(-22.187775, -2.862995, 0), V(-22.126178, -3.089263, 0), V(-22.033238, -3.308923, 0), V(-21.923343, -3.481067, 0), V(-21.818687, -3.612032, 0), V(-21.729458, -3.705866, 0), V(-21.629546, -3.79199, 0), V(-21.521747, -3.873674, 0), V(-21.404002, -3.948592, 0), V(-21.276877, -4.016719, 0), V(-21.140019, -4.078885, 0), V(-21.044479, -4.114304, 0), V(-20.995632, -4.132412, 0)], [4, 1, 1, 1, 1, 1, 1, 1, 1, 1, 1, 1, 4], [0, 1.353760809, 2.704726607, 4.075137775, 5.516104923, 6.260822281, 7.007110065, 7.778089737, 8.566572457, 9.372053459, 10.217411131, 11.088608312, 12], False, 3, [1, 1, 1, 1, 1, 1, 1, 1, 1, 1, 1, 1, 1, 1, 1], False), False)  # 13
sketch5.addGeometry(Part.BSplineCurve([V(-19.235817, -0.897436, 0), V(-19.329314, -0.897675, 0), V(-19.510774, -0.898138, 0), V(-19.774461, -0.910251, 0), V(-20.020401, -0.926751, 0), V(-20.248908, -0.948034, 0), V(-20.459208, -0.97964, 0), V(-20.652748, -1.015053, 0), V(-20.828502, -1.058149, 0), V(-20.987677, -1.10914, 0), V(-21.132978, -1.167216, 0), V(-21.268173, -1.230636, 0), V(-21.394902, -1.298729, 0), V(-21.511879, -1.375068, 0), V(-21.620266, -1.457923, 0), V(-21.719754, -1.547428, 0), V(-21.809908, -1.643427, 0), V(-21.916884, -1.776321, 0), V(-22.028737, -1.950902, 0), V(-22.124939, -2.171996, 0), V(-22.185787, -2.399279, 0), V(-22.193504, -2.553588, 0), V(-22.197355, -2.630609, 0)], [4, 1, 1, 1, 1, 1, 1, 1, 1, 1, 1, 1, 1, 1, 1, 1, 1, 1, 1, 1, 4], [0, 1.459116078, 2.831857795, 4.118796693, 5.306371758, 6.412361096, 7.436813035, 8.376339383, 9.234574298, 10.043323891, 10.816788787, 11.564361537, 12.286735248, 12.994408768, 13.691741332, 14.372975427, 15.047457468, 16.352811911, 17.594285292, 18.799233213, 20], False, 3, [1, 1, 1, 1, 1, 1, 1, 1, 1, 1, 1, 1, 1, 1, 1, 1, 1, 1, 1, 1, 1, 1, 1], False), False)  # 14
sketch5.addConstraint(Sketcher.Constraint("Block", 6))
sketch5.addConstraint(Sketcher.Constraint("Block", 7))
sketch5.addConstraint(Sketcher.Constraint("Block", 8))
sketch5.addConstraint(Sketcher.Constraint("Block", 9))
sketch5.addConstraint(Sketcher.Constraint("Block", 10))
sketch5.addConstraint(Sketcher.Constraint("Block", 11))
sketch5.addConstraint(Sketcher.Constraint("Block", 12))
sketch5.addConstraint(Sketcher.Constraint("Block", 13))
sketch5.addConstraint(Sketcher.Constraint("Block", 14))
sketch5.addConstraint(Sketcher.Constraint("Vertical", 0))
sketch5.addConstraint(Sketcher.Constraint("Vertical", 2))
sketch5.addConstraint(Sketcher.Constraint("Horizontal", 3))
sketch5.addConstraint(Sketcher.Constraint("Vertical", 4))
sketch5.addConstraint(Sketcher.Constraint("Horizontal", 5))
sketch5.addConstraint(Sketcher.Constraint("DistanceX", 5, 1, 5, 2, Q("7 mm")))
sketch5.addConstraint(Sketcher.Constraint("DistanceX", 3, 2, 3, 1, Q("6.282051 mm")))
sketch5.addConstraint(Sketcher.Constraint("DistanceY", 0, 1, 0, 2, Q("1.294271 mm")))
sketch5.addConstraint(Sketcher.Constraint("DistanceY", 2, 2, 2, 1, Q("1.076923 mm")))
sketch5.addConstraint(Sketcher.Constraint("DistanceY", 4, 2, 4, 1, Q("0.628205 mm")))
sketch5.addConstraint(Sketcher.Constraint("DistanceY", -1, 1, 1, 2, Q("4.038462 mm")))
sketch5.addConstraint(Sketcher.Constraint("DistanceX", 0, 2, -1, 1, Q("15.735817 mm")))
pocket4 = body.newObject("PartDesign::Pocket", "Pocket003")
pocket4.Profile = sketch5
pocket4.Length = 1

doc.recompute()
